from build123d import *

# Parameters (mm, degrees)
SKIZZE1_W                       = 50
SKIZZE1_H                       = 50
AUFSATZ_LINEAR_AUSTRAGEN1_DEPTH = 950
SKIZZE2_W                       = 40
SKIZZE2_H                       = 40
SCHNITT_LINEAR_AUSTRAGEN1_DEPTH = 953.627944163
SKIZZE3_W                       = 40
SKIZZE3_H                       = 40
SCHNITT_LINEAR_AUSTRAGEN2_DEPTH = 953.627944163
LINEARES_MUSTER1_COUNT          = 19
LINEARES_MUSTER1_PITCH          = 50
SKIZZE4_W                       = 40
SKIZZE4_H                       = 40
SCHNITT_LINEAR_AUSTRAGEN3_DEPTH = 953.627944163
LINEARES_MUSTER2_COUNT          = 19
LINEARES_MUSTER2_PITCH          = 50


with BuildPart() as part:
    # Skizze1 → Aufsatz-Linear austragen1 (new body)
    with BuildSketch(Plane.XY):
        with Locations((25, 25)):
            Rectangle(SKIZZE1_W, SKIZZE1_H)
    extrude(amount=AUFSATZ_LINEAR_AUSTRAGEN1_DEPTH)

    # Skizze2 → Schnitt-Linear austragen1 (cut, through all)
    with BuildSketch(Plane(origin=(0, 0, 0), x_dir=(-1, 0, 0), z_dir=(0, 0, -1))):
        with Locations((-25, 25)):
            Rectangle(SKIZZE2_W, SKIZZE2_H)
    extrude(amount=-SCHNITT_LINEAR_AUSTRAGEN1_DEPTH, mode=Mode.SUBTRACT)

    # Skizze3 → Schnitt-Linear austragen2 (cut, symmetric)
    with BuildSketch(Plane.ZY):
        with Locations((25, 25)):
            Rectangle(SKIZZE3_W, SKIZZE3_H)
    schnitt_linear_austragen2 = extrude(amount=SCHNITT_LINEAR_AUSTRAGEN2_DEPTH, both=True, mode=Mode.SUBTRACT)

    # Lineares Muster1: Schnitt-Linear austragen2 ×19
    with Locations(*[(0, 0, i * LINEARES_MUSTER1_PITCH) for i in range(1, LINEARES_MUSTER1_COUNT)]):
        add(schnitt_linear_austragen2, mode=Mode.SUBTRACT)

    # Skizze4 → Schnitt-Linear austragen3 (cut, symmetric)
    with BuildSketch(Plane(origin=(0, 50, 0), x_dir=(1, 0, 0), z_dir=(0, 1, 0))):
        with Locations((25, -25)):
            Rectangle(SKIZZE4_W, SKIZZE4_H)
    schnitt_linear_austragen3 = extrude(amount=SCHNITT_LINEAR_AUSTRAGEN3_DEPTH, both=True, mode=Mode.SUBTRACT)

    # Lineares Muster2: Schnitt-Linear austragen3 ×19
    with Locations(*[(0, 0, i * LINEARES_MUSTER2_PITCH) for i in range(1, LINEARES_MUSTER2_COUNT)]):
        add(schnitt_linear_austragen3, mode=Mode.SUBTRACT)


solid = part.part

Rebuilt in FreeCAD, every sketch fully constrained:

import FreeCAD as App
import Part
import Sketcher


def add_polygon(sketch, points):
    """Adds a closed chain of lines whose ends are joined by coincident constraints."""
    first, n = sketch.GeometryCount, len(points)
    for a, b in zip(points, points[1:] + points[:1]):
        sketch.addGeometry(Part.LineSegment(App.Vector(*a, 0), App.Vector(*b, 0)), False)
    for i in range(n):
        sketch.addConstraint(Sketcher.Constraint("Coincident", first + i, 2, first + (i + 1) % n, 1))

doc = App.newDocument("Part")
body = doc.addObject("PartDesign::Body", "Body")

# Sketch on XY plane
sketch1 = body.newObject("Sketcher::SketchObject", "Sketch")
sketch1.AttachmentSupport = (doc.getObject("XY_Plane"), [""])
sketch1.MapMode = "FlatFace"
add_polygon(sketch1, [(0, 50), (0, 0), (50, 0), (50, 50)])  # lines 0-3
sketch1.addConstraint([
    Sketcher.Constraint("Vertical", 0),
    Sketcher.Constraint("Horizontal", 1),
    Sketcher.Constraint("Vertical", 2),
    Sketcher.Constraint("Horizontal", 3),
    Sketcher.Constraint("Coincident", 0, 2, -1, 1),
    Sketcher.Constraint("Equal", 3, 0),
    Sketcher.Constraint("DistanceX", 1, 1, 1, 2, 50.0),
])
pad1 = body.newObject("PartDesign::Pad", "Pad")
pad1.Profile = sketch1
pad1.Length = 950

# Sketch on XY plane
sketch2 = body.newObject("Sketcher::SketchObject", "Sketch001")
sketch2.AttachmentSupport = (doc.getObject("XY_Plane"), [""])
sketch2.MapMode = "FlatFace"
add_polygon(sketch2, [(45, 45), (45, 5), (5, 5), (5, 45)])  # lines 0-3
sketch2.addConstraint([
    Sketcher.Constraint("Vertical", 0),
    Sketcher.Constraint("Horizontal", 1),
    Sketcher.Constraint("Vertical", 2),
    Sketcher.Constraint("Horizontal", 3),
    Sketcher.Constraint("Equal", 3, 0),
    Sketcher.Constraint("DistanceX", 1, 2, 1, 1, 40.0),
    Sketcher.Constraint("DistanceX", -1, 1, 0, 2, 45.0),
    Sketcher.Constraint("DistanceY", -1, 1, 0, 2, 5.0),
])
pocket1 = body.newObject("PartDesign::Pocket", "Pocket")
pocket1.Profile = sketch2
pocket1.Type = "ThroughAll"
pocket1.Reversed = True

# Sketch on YZ plane
sketch3 = body.newObject("Sketcher::SketchObject", "Sketch002")
sketch3.AttachmentSupport = (doc.getObject("YZ_Plane"), [""])
sketch3.MapMode = "FlatFace"
add_polygon(sketch3, [(45, 5), (5, 5), (5, 45), (45, 45)])  # lines 0-3
sketch3.addConstraint([
    Sketcher.Constraint("Horizontal", 0),
    Sketcher.Constraint("Vertical", 1),
    Sketcher.Constraint("Horizontal", 2),
    Sketcher.Constraint("Vertical", 3),
    Sketcher.Constraint("Equal", 2, 1),
    Sketcher.Constraint("DistanceX", 0, 2, 0, 1, 40.0),
    Sketcher.Constraint("DistanceX", -1, 1, 0, 2, 5.0),
    Sketcher.Constraint("DistanceY", -1, 1, 0, 2, 5.0),
])
pocket2 = body.newObject("PartDesign::Pocket", "Pocket001")
pocket2.Profile = sketch3
pocket2.Length = 1907.255888
pocket2.Midplane = True
doc.recompute()

linearpattern = body.newObject("PartDesign::LinearPattern", "LinearPattern")
linearpattern.Originals = [pocket2]
linearpattern.Direction = (doc.getObject("Z_Axis"), [""])
linearpattern.Mode = "offset"
linearpattern.Offset = 50
linearpattern.Occurrences = 19
body.Tip = linearpattern

# Sketch on XZ plane
sketch4 = body.newObject("Sketcher::SketchObject", "Sketch003")
sketch4.AttachmentSupport = (doc.getObject("XZ_Plane"), [""])
sketch4.MapMode = "FlatFace"
sketch4.AttachmentOffset = App.Placement(App.Vector(0, 0, -50), App.Rotation())
add_polygon(sketch4, [(5, 5), (5, 45), (45, 45), (45, 5)])  # lines 0-3
sketch4.addConstraint([
    Sketcher.Constraint("Vertical", 0),
    Sketcher.Constraint("Horizontal", 1),
    Sketcher.Constraint("Vertical", 2),
    Sketcher.Constraint("Horizontal", 3),
    Sketcher.Constraint("Equal", 3, 0),
    Sketcher.Constraint("DistanceX", 1, 1, 1, 2, 40.0),
    Sketcher.Constraint("DistanceX", -1, 1, 0, 2, 5.0),
    Sketcher.Constraint("DistanceY", -1, 1, 0, 2, 45.0),
])
pocket3 = body.newObject("PartDesign::Pocket", "Pocket002")
pocket3.Profile = sketch4
pocket3.Length = 1907.255888
pocket3.Midplane = True
doc.recompute()

linearpattern2 = body.newObject("PartDesign::LinearPattern", "LinearPattern001")
linearpattern2.Originals = [pocket3]
linearpattern2.Direction = (doc.getObject("Z_Axis"), [""])
linearpattern2.Mode = "offset"
linearpattern2.Offset = 50
linearpattern2.Occurrences = 19
body.Tip = linearpattern2

doc.recompute()
